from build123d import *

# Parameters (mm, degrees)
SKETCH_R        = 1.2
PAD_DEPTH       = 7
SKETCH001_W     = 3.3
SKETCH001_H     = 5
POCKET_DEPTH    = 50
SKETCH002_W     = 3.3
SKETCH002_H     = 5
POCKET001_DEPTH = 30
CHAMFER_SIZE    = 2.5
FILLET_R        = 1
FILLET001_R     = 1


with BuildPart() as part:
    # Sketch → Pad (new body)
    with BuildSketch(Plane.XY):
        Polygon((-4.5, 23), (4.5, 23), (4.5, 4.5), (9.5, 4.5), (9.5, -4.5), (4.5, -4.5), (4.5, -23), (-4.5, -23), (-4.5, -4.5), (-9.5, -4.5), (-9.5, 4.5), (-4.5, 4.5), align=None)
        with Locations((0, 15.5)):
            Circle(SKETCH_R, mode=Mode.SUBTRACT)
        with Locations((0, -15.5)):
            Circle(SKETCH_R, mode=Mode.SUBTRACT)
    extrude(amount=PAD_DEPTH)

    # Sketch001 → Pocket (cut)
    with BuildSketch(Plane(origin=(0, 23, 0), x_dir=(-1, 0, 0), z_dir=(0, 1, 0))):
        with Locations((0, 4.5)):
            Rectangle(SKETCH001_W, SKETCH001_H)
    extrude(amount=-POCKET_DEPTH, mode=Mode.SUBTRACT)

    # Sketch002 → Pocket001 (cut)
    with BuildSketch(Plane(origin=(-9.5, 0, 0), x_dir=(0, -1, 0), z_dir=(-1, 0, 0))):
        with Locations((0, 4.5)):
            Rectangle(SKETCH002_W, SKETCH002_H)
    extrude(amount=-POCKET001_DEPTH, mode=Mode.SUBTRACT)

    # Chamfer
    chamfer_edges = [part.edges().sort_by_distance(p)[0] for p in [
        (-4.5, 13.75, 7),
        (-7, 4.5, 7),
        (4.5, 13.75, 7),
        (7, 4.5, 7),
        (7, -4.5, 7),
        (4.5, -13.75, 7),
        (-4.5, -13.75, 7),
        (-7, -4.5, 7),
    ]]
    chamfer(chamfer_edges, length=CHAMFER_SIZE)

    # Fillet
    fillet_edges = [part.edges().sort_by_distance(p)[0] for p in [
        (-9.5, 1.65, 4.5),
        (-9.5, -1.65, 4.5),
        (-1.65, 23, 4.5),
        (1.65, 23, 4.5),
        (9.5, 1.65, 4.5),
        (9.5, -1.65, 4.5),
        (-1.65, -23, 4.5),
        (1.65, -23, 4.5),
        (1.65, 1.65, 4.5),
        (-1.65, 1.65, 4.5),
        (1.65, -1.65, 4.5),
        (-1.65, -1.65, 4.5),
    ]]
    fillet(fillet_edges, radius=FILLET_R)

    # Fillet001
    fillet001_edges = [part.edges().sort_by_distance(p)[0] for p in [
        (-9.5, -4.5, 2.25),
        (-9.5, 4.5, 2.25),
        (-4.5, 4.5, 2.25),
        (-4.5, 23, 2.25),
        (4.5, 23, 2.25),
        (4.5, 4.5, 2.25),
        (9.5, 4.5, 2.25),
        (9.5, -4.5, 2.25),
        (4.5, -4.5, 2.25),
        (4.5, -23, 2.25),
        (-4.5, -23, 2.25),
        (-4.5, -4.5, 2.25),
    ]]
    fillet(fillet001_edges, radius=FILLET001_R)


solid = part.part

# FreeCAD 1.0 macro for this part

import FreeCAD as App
import Part
import Sketcher


def edges_at(feature, points):
    """Names of the edges that pass closest to the given points."""
    edges = feature.Shape.Edges
    near = lambda p: min(range(len(edges)), key=lambda i: edges[i].distToShape(Part.Vertex(*p))[0])
    return sorted({f"Edge{near(p) + 1}" for p in points})


def add_polygon(sketch, points):
    """Adds a closed chain of lines whose ends are joined by coincident constraints."""
    first, n = sketch.GeometryCount, len(points)
    for a, b in zip(points, points[1:] + points[:1]):
        sketch.addGeometry(Part.LineSegment(App.Vector(*a, 0), App.Vector(*b, 0)), False)
    for i in range(n):
        sketch.addConstraint(Sketcher.Constraint("Coincident", first + i, 2, first + (i + 1) % n, 1))

doc = App.newDocument("Part")
params = doc.addObject("Spreadsheet::Sheet", "Params")
for row, (alias, value) in enumerate([
    ("sketch1_diameter", "2.4 mm"),
    ("sketch1_width", "9 mm"),
    ("sketch1_width2", "5 mm"),
    ("sketch1_height", "18.5 mm"),
    ("pad1_length", "7 mm"),
    ("sketch2_height", "5 mm"),
    ("sketch2_width", "3.3 mm"),
    ("pocket1_length", "50 mm"),
    ("sketch3_height", "5 mm"),
    ("sketch3_width", "3.3 mm"),
    ("pocket2_length", "30 mm"),
    ("chamfer_size", "2.5 mm"),
    ("fillet_radius", "1 mm"),
    ("fillet2_radius", "1 mm"),
], start=1):
    params.set(f"A{row}", alias)
    params.set(f"B{row}", "=" + value)
    params.setAlias(f"B{row}", alias)

body = doc.addObject("PartDesign::Body", "Body")

sketch1 = body.newObject("Sketcher::SketchObject", "Sketch")
sketch1.AttachmentSupport = (doc.getObject("XY_Plane"), [""])
sketch1.MapMode = "FlatFace"
add_polygon(sketch1, [(4.5, 23), (-4.5, 23), (-4.5, 4.5), (-9.5, 4.5), (-9.5, -4.5), (-4.5, -4.5), (-4.5, -23), (4.5, -23), (4.5, -4.5), (9.5, -4.5), (9.5, 4.5), (4.5, 4.5)])
sketch1.addGeometry(Part.Circle(App.Vector(0, -15.5, 0), App.Vector(0, 0, 1), 1.2), False)
sketch1.addGeometry(Part.Circle(App.Vector(0, 15.5, 0), App.Vector(0, 0, 1), 1.2), False)
sketch1.addConstraint([
    Sketcher.Constraint("Horizontal", 0),
    Sketcher.Constraint("Vertical", 1),
    Sketcher.Constraint("Horizontal", 2),
    Sketcher.Constraint("Vertical", 3),
    Sketcher.Constraint("Horizontal", 4),
    Sketcher.Constraint("Vertical", 5),
    Sketcher.Constraint("Horizontal", 6),
    Sketcher.Constraint("Vertical", 7),
    Sketcher.Constraint("Horizontal", 8),
    Sketcher.Constraint("Vertical", 9),
    Sketcher.Constraint("Horizontal", 10),
    Sketcher.Constraint("Vertical", 11),
    Sketcher.Constraint("Equal", 12, 13),
    Sketcher.Constraint("Symmetric", 12, 3, 13, 3, -1, 1),
    Sketcher.Constraint("Symmetric", 0, 2, 6, 2, -1, 1),
    Sketcher.Constraint("Symmetric", 2, 2, 8, 2, -1, 1),
    Sketcher.Constraint("Symmetric", 4, 2, 10, 2, -1, 1),
    Sketcher.Constraint("Symmetric", 4, 2, 7, 2, -2),
    Sketcher.Constraint("PointOnObject", 12, 3, -2),
    Sketcher.Constraint("Equal", 6, 3),
    Sketcher.Constraint("Diameter", 12, 2.4),
    Sketcher.Constraint("DistanceX", 0, 2, 0, 1, 9.0),
    Sketcher.Constraint("DistanceX", 2, 2, 2, 1, 5.0),
    Sketcher.Constraint("DistanceY", 1, 2, 1, 1, 18.5),
    Sketcher.Constraint("DistanceY", 12, 3, 13, 3, 31.0),
])
sketch1.setExpression("Constraints[32]", "Params.sketch1_diameter")
sketch1.setExpression("Constraints[33]", "Params.sketch1_width")
sketch1.setExpression("Constraints[34]", "Params.sketch1_width2")
sketch1.setExpression("Constraints[35]", "Params.sketch1_height")
pad1 = body.newObject("PartDesign::Pad", "Pad")
pad1.Profile = sketch1
pad1.setExpression("Length", "Params.pad1_length")

sketch2 = body.newObject("Sketcher::SketchObject", "Sketch001")
sketch2.AttachmentSupport = (doc.getObject("XZ_Plane"), [""])
sketch2.MapMode = "FlatFace"
sketch2.AttachmentOffset = App.Placement(App.Vector(0, 0, -23), App.Rotation())
add_polygon(sketch2, [(1.6, 7), (1.6, 2), (-1.6, 2), (-1.6, 7)])
sketch2.addConstraint([
    Sketcher.Constraint("Vertical", 0),
    Sketcher.Constraint("Horizontal", 1),
    Sketcher.Constraint("Vertical", 2),
    Sketcher.Constraint("Horizontal", 3),
    Sketcher.Constraint("DistanceY", 0, 2, 0, 1, 5.0),
    Sketcher.Constraint("DistanceX", 1, 2, 1, 1, 3.3),
    Sketcher.Constraint("DistanceY", -1, 1, 0, 2, 2.0),
    Sketcher.Constraint("DistanceX", -1, 1, 0, 2, 1.65),
])
sketch2.setExpression("Constraints[8]", "Params.sketch2_height")
sketch2.setExpression("Constraints[9]", "Params.sketch2_width")
pocket1 = body.newObject("PartDesign::Pocket", "Pocket")
pocket1.Profile = sketch2
pocket1.setExpression("Length", "Params.pocket1_length")
pocket1.Reversed = True

sketch3 = body.newObject("Sketcher::SketchObject", "Sketch002")
sketch3.AttachmentSupport = (doc.getObject("YZ_Plane"), [""])
sketch3.MapMode = "FlatFace"
sketch3.AttachmentOffset = App.Placement(App.Vector(0, 0, -9.5), App.Rotation())
add_polygon(sketch3, [(1.6, 7), (1.6, 2), (-1.6, 2), (-1.6, 7)])
sketch3.addConstraint([
    Sketcher.Constraint("Vertical", 0),
    Sketcher.Constraint("Horizontal", 1),
    Sketcher.Constraint("Vertical", 2),
    Sketcher.Constraint("Horizontal", 3),
    Sketcher.Constraint("DistanceY", 0, 2, 0, 1, 5.0),
    Sketcher.Constraint("DistanceX", 1, 2, 1, 1, 3.3),
    Sketcher.Constraint("DistanceY", -1, 1, 0, 2, 2.0),
    Sketcher.Constraint("DistanceX", -1, 1, 0, 2, 1.65),
])
sketch3.setExpression("Constraints[8]", "Params.sketch3_height")
sketch3.setExpression("Constraints[9]", "Params.sketch3_width")
pocket2 = body.newObject("PartDesign::Pocket", "Pocket001")
pocket2.Profile = sketch3
pocket2.setExpression("Length", "Params.pocket2_length")
pocket2.Reversed = True
doc.recompute()

chamfer = body.newObject("PartDesign::Chamfer", "Chamfer")
chamfer.Base = (pocket2, edges_at(pocket2, [
    (-4.5, 13.75, 7),
    (-7, 4.5, 7),
    (4.5, 13.75, 7),
    (7, 4.5, 7),
    (7, -4.5, 7),
    (4.5, -13.75, 7),
    (-4.5, -13.75, 7),
    (-7, -4.5, 7),
]))
chamfer.setExpression("Size", "Params.chamfer_size")
doc.recompute()

fillet = body.newObject("PartDesign::Fillet", "Fillet")
fillet.Base = (chamfer, edges_at(chamfer, [
    (-9.5, 1.65, 4.5),
    (-9.5, -1.65, 4.5),
    (-1.65, 23, 4.5),
    (1.65, 23, 4.5),
    (9.5, 1.65, 4.5),
    (9.5, -1.65, 4.5),
    (-1.65, -23, 4.5),
    (1.65, -23, 4.5),
    (1.65, 1.65, 4.5),
    (-1.65, 1.65, 4.5),
    (1.65, -1.65, 4.5),
    (-1.65, -1.65, 4.5),
]))
fillet.setExpression("Radius", "Params.fillet_radius")
doc.recompute()

fillet2 = body.newObject("PartDesign::Fillet", "Fillet001")
fillet2.Base = (fillet, edges_at(fillet, [
    (-9.5, -4.5, 2.25),
    (-9.5, 4.5, 2.25),
    (-4.5, 4.5, 2.25),
    (-4.5, 23, 2.25),
    (4.5, 23, 2.25),
    (4.5, 4.5, 2.25),
    (9.5, 4.5, 2.25),
    (9.5, -4.5, 2.25),
    (4.5, -4.5, 2.25),
    (4.5, -23, 2.25),
    (-4.5, -23, 2.25),
    (-4.5, -4.5, 2.25),
]))
fillet2.setExpression("Radius", "Params.fillet2_radius")

doc.recompute()
